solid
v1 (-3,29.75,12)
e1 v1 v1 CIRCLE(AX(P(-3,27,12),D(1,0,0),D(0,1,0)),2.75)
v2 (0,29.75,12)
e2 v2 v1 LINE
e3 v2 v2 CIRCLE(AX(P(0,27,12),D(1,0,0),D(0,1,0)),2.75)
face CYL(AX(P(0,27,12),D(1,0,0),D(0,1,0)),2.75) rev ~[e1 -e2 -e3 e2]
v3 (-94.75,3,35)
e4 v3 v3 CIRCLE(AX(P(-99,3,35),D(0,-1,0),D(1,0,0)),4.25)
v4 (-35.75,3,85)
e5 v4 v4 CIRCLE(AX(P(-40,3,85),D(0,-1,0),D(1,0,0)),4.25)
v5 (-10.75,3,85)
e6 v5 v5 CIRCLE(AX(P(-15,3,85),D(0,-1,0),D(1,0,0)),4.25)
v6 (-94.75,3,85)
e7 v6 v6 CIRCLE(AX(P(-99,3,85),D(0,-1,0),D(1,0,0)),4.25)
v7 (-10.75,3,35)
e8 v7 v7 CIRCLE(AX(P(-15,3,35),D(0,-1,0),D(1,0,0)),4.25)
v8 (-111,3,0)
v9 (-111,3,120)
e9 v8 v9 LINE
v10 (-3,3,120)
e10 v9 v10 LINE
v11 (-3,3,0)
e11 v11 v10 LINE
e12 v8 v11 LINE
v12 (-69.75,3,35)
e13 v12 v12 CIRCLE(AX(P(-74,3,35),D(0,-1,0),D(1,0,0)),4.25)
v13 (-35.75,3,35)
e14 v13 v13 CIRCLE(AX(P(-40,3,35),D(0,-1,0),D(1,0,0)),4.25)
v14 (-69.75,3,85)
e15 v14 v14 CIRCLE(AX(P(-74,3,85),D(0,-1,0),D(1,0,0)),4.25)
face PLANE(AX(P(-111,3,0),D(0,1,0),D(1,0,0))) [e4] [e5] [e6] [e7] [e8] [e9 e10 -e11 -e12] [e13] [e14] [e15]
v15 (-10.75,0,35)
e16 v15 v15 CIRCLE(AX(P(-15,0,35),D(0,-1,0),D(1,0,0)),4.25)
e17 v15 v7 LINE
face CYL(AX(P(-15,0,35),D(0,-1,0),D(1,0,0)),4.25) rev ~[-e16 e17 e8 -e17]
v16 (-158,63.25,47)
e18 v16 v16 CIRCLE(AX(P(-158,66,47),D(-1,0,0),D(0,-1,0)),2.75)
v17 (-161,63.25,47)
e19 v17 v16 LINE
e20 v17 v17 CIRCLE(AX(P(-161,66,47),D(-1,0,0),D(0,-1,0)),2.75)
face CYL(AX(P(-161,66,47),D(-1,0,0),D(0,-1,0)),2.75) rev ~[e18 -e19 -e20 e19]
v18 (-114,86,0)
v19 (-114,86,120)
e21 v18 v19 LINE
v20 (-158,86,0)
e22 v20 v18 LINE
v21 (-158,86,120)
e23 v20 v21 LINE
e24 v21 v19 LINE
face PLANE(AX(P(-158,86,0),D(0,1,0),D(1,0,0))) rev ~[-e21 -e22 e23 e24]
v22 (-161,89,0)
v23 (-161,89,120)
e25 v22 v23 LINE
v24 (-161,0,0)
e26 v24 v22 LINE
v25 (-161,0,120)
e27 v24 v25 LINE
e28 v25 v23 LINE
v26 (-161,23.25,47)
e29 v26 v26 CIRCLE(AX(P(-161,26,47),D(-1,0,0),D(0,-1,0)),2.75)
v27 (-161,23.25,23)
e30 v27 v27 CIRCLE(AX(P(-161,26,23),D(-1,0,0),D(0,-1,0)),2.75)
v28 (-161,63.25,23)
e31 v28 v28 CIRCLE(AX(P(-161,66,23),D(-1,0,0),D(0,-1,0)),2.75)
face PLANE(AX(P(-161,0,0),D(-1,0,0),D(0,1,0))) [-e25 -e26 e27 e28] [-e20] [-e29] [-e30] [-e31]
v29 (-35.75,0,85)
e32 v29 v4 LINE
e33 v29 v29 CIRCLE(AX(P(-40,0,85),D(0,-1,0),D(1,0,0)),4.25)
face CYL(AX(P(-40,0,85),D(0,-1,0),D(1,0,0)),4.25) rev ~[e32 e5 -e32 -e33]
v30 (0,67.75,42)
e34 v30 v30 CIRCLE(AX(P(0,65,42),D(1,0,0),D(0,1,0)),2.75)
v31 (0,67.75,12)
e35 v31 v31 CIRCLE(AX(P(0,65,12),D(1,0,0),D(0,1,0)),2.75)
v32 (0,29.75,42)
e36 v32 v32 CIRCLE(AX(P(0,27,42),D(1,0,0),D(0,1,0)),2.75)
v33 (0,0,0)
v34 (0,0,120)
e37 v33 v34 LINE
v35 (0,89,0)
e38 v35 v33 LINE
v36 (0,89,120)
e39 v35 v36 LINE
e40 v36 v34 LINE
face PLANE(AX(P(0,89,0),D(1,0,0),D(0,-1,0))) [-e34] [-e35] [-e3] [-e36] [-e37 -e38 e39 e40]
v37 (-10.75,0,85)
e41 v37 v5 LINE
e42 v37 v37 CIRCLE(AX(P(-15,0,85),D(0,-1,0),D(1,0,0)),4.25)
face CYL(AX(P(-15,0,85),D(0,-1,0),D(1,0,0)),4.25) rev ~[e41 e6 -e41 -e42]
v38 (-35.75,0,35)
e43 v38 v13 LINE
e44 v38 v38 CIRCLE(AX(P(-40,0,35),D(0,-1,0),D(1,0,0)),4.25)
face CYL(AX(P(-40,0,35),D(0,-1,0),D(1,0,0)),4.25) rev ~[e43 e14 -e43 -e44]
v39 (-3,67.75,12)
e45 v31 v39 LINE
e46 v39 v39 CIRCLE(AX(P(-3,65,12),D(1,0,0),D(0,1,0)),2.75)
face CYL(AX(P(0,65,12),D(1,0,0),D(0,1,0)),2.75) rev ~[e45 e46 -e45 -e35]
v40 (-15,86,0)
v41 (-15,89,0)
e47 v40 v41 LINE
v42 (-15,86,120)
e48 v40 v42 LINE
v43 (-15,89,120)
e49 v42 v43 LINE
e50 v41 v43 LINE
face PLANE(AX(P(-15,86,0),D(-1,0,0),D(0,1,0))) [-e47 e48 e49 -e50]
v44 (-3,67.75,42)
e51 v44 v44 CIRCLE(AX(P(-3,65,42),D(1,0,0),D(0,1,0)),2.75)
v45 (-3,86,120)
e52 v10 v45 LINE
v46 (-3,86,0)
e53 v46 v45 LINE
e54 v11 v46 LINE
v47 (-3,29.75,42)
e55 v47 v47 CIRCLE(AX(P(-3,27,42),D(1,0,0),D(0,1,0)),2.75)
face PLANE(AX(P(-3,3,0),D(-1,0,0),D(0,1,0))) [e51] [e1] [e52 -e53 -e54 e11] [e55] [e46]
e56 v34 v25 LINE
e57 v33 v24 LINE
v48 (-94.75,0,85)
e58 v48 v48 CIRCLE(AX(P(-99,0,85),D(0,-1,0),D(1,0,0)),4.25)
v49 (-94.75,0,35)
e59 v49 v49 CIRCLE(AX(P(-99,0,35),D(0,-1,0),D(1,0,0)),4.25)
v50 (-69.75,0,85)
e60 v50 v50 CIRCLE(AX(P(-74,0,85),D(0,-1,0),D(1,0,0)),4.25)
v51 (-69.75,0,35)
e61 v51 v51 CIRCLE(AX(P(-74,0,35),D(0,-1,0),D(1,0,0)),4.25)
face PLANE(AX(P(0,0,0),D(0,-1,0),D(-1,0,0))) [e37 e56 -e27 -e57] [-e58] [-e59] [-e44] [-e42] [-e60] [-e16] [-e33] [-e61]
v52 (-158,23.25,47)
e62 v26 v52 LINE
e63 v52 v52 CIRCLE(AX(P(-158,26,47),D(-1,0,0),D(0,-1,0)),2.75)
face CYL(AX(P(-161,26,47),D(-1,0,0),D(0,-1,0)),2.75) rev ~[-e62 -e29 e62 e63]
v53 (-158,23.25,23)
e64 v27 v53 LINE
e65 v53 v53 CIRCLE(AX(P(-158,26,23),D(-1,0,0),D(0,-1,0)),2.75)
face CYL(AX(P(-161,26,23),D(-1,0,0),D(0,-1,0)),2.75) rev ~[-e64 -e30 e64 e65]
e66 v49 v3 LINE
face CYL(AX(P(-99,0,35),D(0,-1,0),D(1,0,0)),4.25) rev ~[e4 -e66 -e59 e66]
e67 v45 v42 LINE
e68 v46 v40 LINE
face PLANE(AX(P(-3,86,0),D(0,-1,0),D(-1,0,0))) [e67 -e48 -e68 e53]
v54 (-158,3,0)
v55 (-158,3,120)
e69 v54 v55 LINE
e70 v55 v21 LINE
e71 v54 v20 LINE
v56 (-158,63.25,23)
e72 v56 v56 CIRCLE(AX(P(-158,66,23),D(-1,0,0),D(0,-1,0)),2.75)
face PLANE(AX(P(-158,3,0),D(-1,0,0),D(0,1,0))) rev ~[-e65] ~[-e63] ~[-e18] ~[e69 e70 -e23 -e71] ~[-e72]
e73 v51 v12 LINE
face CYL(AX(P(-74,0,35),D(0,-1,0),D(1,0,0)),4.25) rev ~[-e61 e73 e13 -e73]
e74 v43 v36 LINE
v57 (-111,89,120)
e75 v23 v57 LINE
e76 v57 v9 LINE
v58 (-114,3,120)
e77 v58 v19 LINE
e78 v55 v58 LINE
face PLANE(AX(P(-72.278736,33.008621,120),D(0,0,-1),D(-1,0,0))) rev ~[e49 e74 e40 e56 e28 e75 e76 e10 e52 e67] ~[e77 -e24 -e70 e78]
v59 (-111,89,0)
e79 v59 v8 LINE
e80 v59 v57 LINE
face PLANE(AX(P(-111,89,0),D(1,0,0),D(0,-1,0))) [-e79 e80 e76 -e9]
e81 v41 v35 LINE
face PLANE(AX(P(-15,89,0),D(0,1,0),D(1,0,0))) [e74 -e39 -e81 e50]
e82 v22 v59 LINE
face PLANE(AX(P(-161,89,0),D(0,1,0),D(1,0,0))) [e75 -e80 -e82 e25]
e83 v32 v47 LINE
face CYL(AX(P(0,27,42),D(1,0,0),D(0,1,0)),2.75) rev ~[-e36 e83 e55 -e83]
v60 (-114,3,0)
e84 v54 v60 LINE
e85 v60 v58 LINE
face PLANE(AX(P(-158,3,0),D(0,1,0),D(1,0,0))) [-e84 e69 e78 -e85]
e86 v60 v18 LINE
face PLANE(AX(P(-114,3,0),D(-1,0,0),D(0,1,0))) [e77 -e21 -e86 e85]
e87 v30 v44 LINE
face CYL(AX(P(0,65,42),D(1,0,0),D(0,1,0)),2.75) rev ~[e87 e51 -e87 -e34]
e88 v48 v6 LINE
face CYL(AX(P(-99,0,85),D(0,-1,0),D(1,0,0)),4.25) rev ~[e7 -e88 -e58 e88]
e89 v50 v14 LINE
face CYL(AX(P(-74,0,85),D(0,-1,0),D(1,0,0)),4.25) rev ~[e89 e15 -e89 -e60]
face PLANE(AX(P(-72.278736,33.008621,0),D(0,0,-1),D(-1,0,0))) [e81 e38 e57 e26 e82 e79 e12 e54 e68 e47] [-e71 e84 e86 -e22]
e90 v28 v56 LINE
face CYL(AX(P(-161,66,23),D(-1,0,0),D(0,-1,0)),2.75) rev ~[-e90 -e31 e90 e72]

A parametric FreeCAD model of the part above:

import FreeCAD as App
import Part
import Sketcher

V = App.Vector

doc = App.newDocument("Part")
body = doc.addObject("PartDesign::Body", "Body")

# Sketch on XY plane
sketch1 = doc.addObject("Sketcher::SketchObject", "Sketch")
body.addObject(sketch1)
sketch1.AttachmentSupport = (doc.XY_Plane, [""])
sketch1.MapMode = "FlatFace"
sketch1.addGeometry(Part.LineSegment(V(-161, 0, 0), V(0, 0, 0)), False)
sketch1.addGeometry(Part.LineSegment(V(0, 0, 0), V(0, 89, 0)), False)
sketch1.addGeometry(Part.LineSegment(V(0, 89, 0), V(-15, 89, 0)), False)
sketch1.addGeometry(Part.LineSegment(V(-15, 89, 0), V(-15, 86, 0)), False)
sketch1.addGeometry(Part.LineSegment(V(-15, 86, 0), V(-3, 86, 0)), False)
sketch1.addGeometry(Part.LineSegment(V(-3, 86, 0), V(-3, 3, 0)), False)
sketch1.addGeometry(Part.LineSegment(V(-3, 3, 0), V(-111, 3, 0)), False)
sketch1.addGeometry(Part.LineSegment(V(-111, 3, 0), V(-111, 89, 0)), False)
sketch1.addGeometry(Part.LineSegment(V(-111, 89, 0), V(-161, 89, 0)), False)
sketch1.addGeometry(Part.LineSegment(V(-161, 89, 0), V(-161, 0, 0)), False)
sketch1.addGeometry(Part.LineSegment(V(-158, 3, 0), V(-158, 86, 0)), False)
sketch1.addGeometry(Part.LineSegment(V(-158, 86, 0), V(-114, 86, 0)), False)
sketch1.addGeometry(Part.LineSegment(V(-114, 86, 0), V(-114, 3, 0)), False)
sketch1.addGeometry(Part.LineSegment(V(-114, 3, 0), V(-158, 3, 0)), False)
sketch1.addConstraint(Sketcher.Constraint("Coincident", 0, 2, 1, 1))
sketch1.addConstraint(Sketcher.Constraint("Coincident", 1, 2, 2, 1))
sketch1.addConstraint(Sketcher.Constraint("Coincident", 2, 2, 3, 1))
sketch1.addConstraint(Sketcher.Constraint("Coincident", 3, 2, 4, 1))
sketch1.addConstraint(Sketcher.Constraint("Coincident", 4, 2, 5, 1))
sketch1.addConstraint(Sketcher.Constraint("Coincident", 5, 2, 6, 1))
sketch1.addConstraint(Sketcher.Constraint("Coincident", 6, 2, 7, 1))
sketch1.addConstraint(Sketcher.Constraint("Coincident", 7, 2, 8, 1))
sketch1.addConstraint(Sketcher.Constraint("Coincident", 8, 2, 9, 1))
sketch1.addConstraint(Sketcher.Constraint("Coincident", 9, 2, 0, 1))
sketch1.addConstraint(Sketcher.Constraint("Coincident", 10, 2, 11, 1))
sketch1.addConstraint(Sketcher.Constraint("Coincident", 11, 2, 12, 1))
sketch1.addConstraint(Sketcher.Constraint("Coincident", 12, 2, 13, 1))
sketch1.addConstraint(Sketcher.Constraint("Coincident", 13, 2, 10, 1))
sketch1.addConstraint(Sketcher.Constraint("Horizontal", 0))
sketch1.addConstraint(Sketcher.Constraint("Vertical", 1))
sketch1.addConstraint(Sketcher.Constraint("Horizontal", 2))
sketch1.addConstraint(Sketcher.Constraint("Vertical", 3))
sketch1.addConstraint(Sketcher.Constraint("Horizontal", 4))
sketch1.addConstraint(Sketcher.Constraint("Vertical", 5))
sketch1.addConstraint(Sketcher.Constraint("Horizontal", 6))
sketch1.addConstraint(Sketcher.Constraint("Vertical", 7))
sketch1.addConstraint(Sketcher.Constraint("Horizontal", 8))
sketch1.addConstraint(Sketcher.Constraint("Vertical", 9))
sketch1.addConstraint(Sketcher.Constraint("Vertical", 10))
sketch1.addConstraint(Sketcher.Constraint("Horizontal", 11))
sketch1.addConstraint(Sketcher.Constraint("Vertical", 12))
sketch1.addConstraint(Sketcher.Constraint("Horizontal", 13))
sketch1.addConstraint(Sketcher.Constraint("Coincident", 0, 2, -1, 1))
sketch1.addConstraint(Sketcher.Constraint("Horizontal", 2, 2, 7, 2))
sketch1.addConstraint(Sketcher.Constraint("Horizontal", 4, 2, 10, 2))
sketch1.addConstraint(Sketcher.Constraint("Horizontal", 6, 2, 12, 2))
sketch1.addConstraint(Sketcher.Constraint("DistanceX", 0, 1, 0, 2, 161.0))
sketch1.addConstraint(Sketcher.Constraint("DistanceX", 2, 2, 2, 1, 15.0))
sketch1.addConstraint(Sketcher.Constraint("DistanceX", 4, 1, 4, 2, 12.0))
sketch1.addConstraint(Sketcher.Constraint("DistanceX", 6, 2, 6, 1, 108.0))
sketch1.addConstraint(Sketcher.Constraint("DistanceX", 11, 1, 11, 2, 44.0))
sketch1.addConstraint(Sketcher.Constraint("DistanceY", 1, 1, 1, 2, 89.0))
sketch1.addConstraint(Sketcher.Constraint("DistanceY", 3, 2, 3, 1, 3.0))
sketch1.addConstraint(Sketcher.Constraint("DistanceY", 5, 2, 5, 1, 83.0))
sketch1.addConstraint(Sketcher.Constraint("DistanceX", 10, 2, -1, 1, 158.0))
pad1 = doc.addObject("PartDesign::Pad", "Pad")
body.addObject(pad1)
pad1.Profile = sketch1
pad1.Length = 120

# Sketch on YZ plane
sketch2 = doc.addObject("Sketcher::SketchObject", "Sketch001")
body.addObject(sketch2)
sketch2.AttachmentSupport = (doc.YZ_Plane, [""])
sketch2.MapMode = "FlatFace"
sketch2.addGeometry(Part.Circle(V(27, 42, 0), V(0, 0, 1), 2.8), False)
sketch2.addGeometry(Part.Circle(V(65, 42, 0), V(0, 0, 1), 2.8), False)
sketch2.addGeometry(Part.Circle(V(27, 12, 0), V(0, 0, 1), 2.8), False)
sketch2.addGeometry(Part.Circle(V(65, 12, 0), V(0, 0, 1), 2.8), False)
sketch2.addConstraint(Sketcher.Constraint("Equal", 0, 1))
sketch2.addConstraint(Sketcher.Constraint("Equal", 1, 2))
sketch2.addConstraint(Sketcher.Constraint("Equal", 2, 3))
sketch2.addConstraint(Sketcher.Constraint("Horizontal", 0, 3, 1, 3))
sketch2.addConstraint(Sketcher.Constraint("Horizontal", 2, 3, 3, 3))
sketch2.addConstraint(Sketcher.Constraint("Vertical", 0, 3, 2, 3))
sketch2.addConstraint(Sketcher.Constraint("Vertical", 1, 3, 3, 3))
sketch2.addConstraint(Sketcher.Constraint("Diameter", 0, 5.5))
sketch2.addConstraint(Sketcher.Constraint("DistanceX", -1, 1, 0, 3, 27.0))
sketch2.addConstraint(Sketcher.Constraint("DistanceY", -1, 1, 0, 3, 42.0))
sketch2.addConstraint(Sketcher.Constraint("DistanceX", -1, 1, 1, 3, 65.0))
sketch2.addConstraint(Sketcher.Constraint("DistanceY", -1, 1, 2, 3, 12.0))
pocket1 = doc.addObject("PartDesign::Pocket", "Pocket")
body.addObject(pocket1)
pocket1.Profile = sketch2
pocket1.Length = 3

# Sketch on XZ plane
sketch3 = doc.addObject("Sketcher::SketchObject", "Sketch002")
body.addObject(sketch3)
sketch3.AttachmentSupport = (doc.XZ_Plane, [""])
sketch3.MapMode = "FlatFace"
sketch3.addGeometry(Part.Circle(V(-40, 85, 0), V(0, 0, 1), 4.2), False)
sketch3.addGeometry(Part.Circle(V(-15, 85, 0), V(0, 0, 1), 4.2), False)
sketch3.addGeometry(Part.Circle(V(-40, 35, 0), V(0, 0, 1), 4.2), False)
sketch3.addGeometry(Part.Circle(V(-15, 35, 0), V(0, 0, 1), 4.2), False)
sketch3.addGeometry(Part.Circle(V(-99, 85, 0), V(0, 0, 1), 4.2), False)
sketch3.addGeometry(Part.Circle(V(-74, 85, 0), V(0, 0, 1), 4.2), False)
sketch3.addGeometry(Part.Circle(V(-99, 35, 0), V(0, 0, 1), 4.2), False)
sketch3.addGeometry(Part.Circle(V(-74, 35, 0), V(0, 0, 1), 4.2), False)
sketch3.addConstraint(Sketcher.Constraint("Equal", 0, 1))
sketch3.addConstraint(Sketcher.Constraint("Equal", 1, 2))
sketch3.addConstraint(Sketcher.Constraint("Equal", 2, 3))
sketch3.addConstraint(Sketcher.Constraint("Equal", 3, 4))
sketch3.addConstraint(Sketcher.Constraint("Equal", 4, 5))
sketch3.addConstraint(Sketcher.Constraint("Equal", 5, 6))
sketch3.addConstraint(Sketcher.Constraint("Equal", 6, 7))
sketch3.addConstraint(Sketcher.Constraint("Horizontal", 0, 3, 1, 3))
sketch3.addConstraint(Sketcher.Constraint("Horizontal", 2, 3, 3, 3))
sketch3.addConstraint(Sketcher.Constraint("Horizontal", 1, 3, 4, 3))
sketch3.addConstraint(Sketcher.Constraint("Horizontal", 4, 3, 5, 3))
sketch3.addConstraint(Sketcher.Constraint("Horizontal", 3, 3, 6, 3))
sketch3.addConstraint(Sketcher.Constraint("Horizontal", 6, 3, 7, 3))
sketch3.addConstraint(Sketcher.Constraint("Vertical", 0, 3, 2, 3))
sketch3.addConstraint(Sketcher.Constraint("Vertical", 1, 3, 3, 3))
sketch3.addConstraint(Sketcher.Constraint("Vertical", 4, 3, 6, 3))
sketch3.addConstraint(Sketcher.Constraint("Vertical", 5, 3, 7, 3))
sketch3.addConstraint(Sketcher.Constraint("Diameter", 0, 8.5))
sketch3.addConstraint(Sketcher.Constraint("DistanceX", 0, 3, -1, 1, 40.0))
sketch3.addConstraint(Sketcher.Constraint("DistanceY", -1, 1, 0, 3, 85.0))
sketch3.addConstraint(Sketcher.Constraint("DistanceX", 1, 3, -1, 1, 15.0))
sketch3.addConstraint(Sketcher.Constraint("DistanceY", -1, 1, 2, 3, 35.0))
sketch3.addConstraint(Sketcher.Constraint("DistanceX", 4, 3, -1, 1, 99.0))
sketch3.addConstraint(Sketcher.Constraint("DistanceX", 5, 3, -1, 1, 74.0))
pocket2 = doc.addObject("PartDesign::Pocket", "Pocket001")
body.addObject(pocket2)
pocket2.Profile = sketch3
pocket2.Length = 3

# Sketch on YZ plane
sketch4 = doc.addObject("Sketcher::SketchObject", "Sketch003")
body.addObject(sketch4)
sketch4.AttachmentSupport = (doc.YZ_Plane, [""])
sketch4.MapMode = "FlatFace"
sketch4.AttachmentOffset = App.Placement(V(0, 0, -161), App.Rotation())
sketch4.addGeometry(Part.Circle(V(66, 47, 0), V(0, 0, 1), 2.8), False)
sketch4.addGeometry(Part.Circle(V(26, 47, 0), V(0, 0, 1), 2.8), False)
sketch4.addGeometry(Part.Circle(V(66, 23, 0), V(0, 0, 1), 2.8), False)
sketch4.addGeometry(Part.Circle(V(26, 23, 0), V(0, 0, 1), 2.8), False)
sketch4.addConstraint(Sketcher.Constraint("Equal", 0, 1))
sketch4.addConstraint(Sketcher.Constraint("Equal", 1, 2))
sketch4.addConstraint(Sketcher.Constraint("Equal", 2, 3))
sketch4.addConstraint(Sketcher.Constraint("Horizontal", 0, 3, 1, 3))
sketch4.addConstraint(Sketcher.Constraint("Horizontal", 2, 3, 3, 3))
sketch4.addConstraint(Sketcher.Constraint("Vertical", 0, 3, 2, 3))
sketch4.addConstraint(Sketcher.Constraint("Vertical", 1, 3, 3, 3))
sketch4.addConstraint(Sketcher.Constraint("Diameter", 0, 5.5))
sketch4.addConstraint(Sketcher.Constraint("DistanceX", -1, 1, 0, 3, 66.0))
sketch4.addConstraint(Sketcher.Constraint("DistanceY", -1, 1, 0, 3, 47.0))
sketch4.addConstraint(Sketcher.Constraint("DistanceX", -1, 1, 1, 3, 26.0))
sketch4.addConstraint(Sketcher.Constraint("DistanceY", -1, 1, 2, 3, 23.0))
pocket3 = doc.addObject("PartDesign::Pocket", "Pocket002")
body.addObject(pocket3)
pocket3.Profile = sketch4
pocket3.Length = 3
pocket3.Reversed = True

doc.recompute()
